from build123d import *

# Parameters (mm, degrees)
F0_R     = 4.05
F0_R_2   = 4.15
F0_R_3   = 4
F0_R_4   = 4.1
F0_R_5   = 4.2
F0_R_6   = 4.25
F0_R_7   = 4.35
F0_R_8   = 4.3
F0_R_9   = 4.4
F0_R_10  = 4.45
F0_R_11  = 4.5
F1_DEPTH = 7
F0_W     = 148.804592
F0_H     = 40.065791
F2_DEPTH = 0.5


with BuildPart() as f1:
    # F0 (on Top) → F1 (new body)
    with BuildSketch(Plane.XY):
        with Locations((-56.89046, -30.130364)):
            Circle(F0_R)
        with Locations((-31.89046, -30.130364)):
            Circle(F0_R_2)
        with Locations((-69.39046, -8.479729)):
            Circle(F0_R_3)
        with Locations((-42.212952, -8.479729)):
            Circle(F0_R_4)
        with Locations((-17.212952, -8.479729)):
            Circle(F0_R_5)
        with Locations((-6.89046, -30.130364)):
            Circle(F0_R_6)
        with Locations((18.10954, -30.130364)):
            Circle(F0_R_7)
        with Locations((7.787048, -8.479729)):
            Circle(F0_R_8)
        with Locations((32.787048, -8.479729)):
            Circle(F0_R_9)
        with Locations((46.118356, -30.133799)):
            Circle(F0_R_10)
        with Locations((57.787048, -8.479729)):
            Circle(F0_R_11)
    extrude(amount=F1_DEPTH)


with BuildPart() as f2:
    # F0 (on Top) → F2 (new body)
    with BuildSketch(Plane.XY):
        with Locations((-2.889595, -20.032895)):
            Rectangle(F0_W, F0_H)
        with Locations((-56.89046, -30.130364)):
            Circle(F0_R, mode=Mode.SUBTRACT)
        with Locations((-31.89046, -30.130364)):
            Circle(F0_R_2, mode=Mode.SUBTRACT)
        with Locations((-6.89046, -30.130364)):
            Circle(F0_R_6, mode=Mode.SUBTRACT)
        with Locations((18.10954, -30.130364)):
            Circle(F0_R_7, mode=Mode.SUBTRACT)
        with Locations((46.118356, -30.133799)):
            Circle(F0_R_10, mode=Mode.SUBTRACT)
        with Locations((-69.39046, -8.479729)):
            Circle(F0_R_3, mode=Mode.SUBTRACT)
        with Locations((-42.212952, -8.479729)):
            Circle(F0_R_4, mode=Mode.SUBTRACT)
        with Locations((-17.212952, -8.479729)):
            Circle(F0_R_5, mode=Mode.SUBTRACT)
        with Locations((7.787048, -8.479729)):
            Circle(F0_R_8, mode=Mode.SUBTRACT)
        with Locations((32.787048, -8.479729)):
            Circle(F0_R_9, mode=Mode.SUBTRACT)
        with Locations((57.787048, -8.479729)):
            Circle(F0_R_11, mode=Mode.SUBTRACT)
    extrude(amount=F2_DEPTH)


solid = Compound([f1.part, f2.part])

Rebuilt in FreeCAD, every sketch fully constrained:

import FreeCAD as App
import Part
import Sketcher
from FreeCAD import Vector


def add_polygon(sketch, points):
    """Adds a closed chain of lines whose ends are joined by coincident constraints."""
    first, n = sketch.GeometryCount, len(points)
    for a, b in zip(points, points[1:] + points[:1]):
        sketch.addGeometry(Part.LineSegment(App.Vector(*a, 0), App.Vector(*b, 0)), False)
    for i in range(n):
        sketch.addConstraint(Sketcher.Constraint("Coincident", first + i, 2, first + (i + 1) % n, 1))

doc = App.newDocument("Part")
body = doc.addObject("PartDesign::Body", "Body")
body.AllowCompound = True

sketch1 = body.newObject("Sketcher::SketchObject", "Sketch")
sketch1.AttachmentSupport = (doc.getObject("XY_Plane"), [""])
sketch1.MapMode = "FlatFace"
sketch1.addGeometry(Part.Circle(Vector(-56.9, -30.1, 0), Vector(0, 0, 1), 4), False)
sketch1.addGeometry(Part.Circle(Vector(-31.9, -30.1, 0), Vector(0, 0, 1), 4.2), False)
sketch1.addGeometry(Part.Circle(Vector(-69.4, -8.5, 0), Vector(0, 0, 1), 4), False)
sketch1.addGeometry(Part.Circle(Vector(-42.2, -8.5, 0), Vector(0, 0, 1), 4.1), False)
sketch1.addGeometry(Part.Circle(Vector(-17.2, -8.5, 0), Vector(0, 0, 1), 4.2), False)
sketch1.addGeometry(Part.Circle(Vector(-6.9, -30.1, 0), Vector(0, 0, 1), 4.2), False)
sketch1.addGeometry(Part.Circle(Vector(18.1, -30.1, 0), Vector(0, 0, 1), 4.3), False)
sketch1.addGeometry(Part.Circle(Vector(7.8, -8.5, 0), Vector(0, 0, 1), 4.3), False)
sketch1.addGeometry(Part.Circle(Vector(32.8, -8.5, 0), Vector(0, 0, 1), 4.4), False)
sketch1.addGeometry(Part.Circle(Vector(46.1, -30.1, 0), Vector(0, 0, 1), 4.5), False)
sketch1.addGeometry(Part.Circle(Vector(57.8, -8.5, 0), Vector(0, 0, 1), 4.5), False)
sketch1.addConstraint(Sketcher.Constraint("Horizontal", 0, 3, 1, 3))
sketch1.addConstraint(Sketcher.Constraint("Horizontal", 2, 3, 3, 3))
sketch1.addConstraint(Sketcher.Constraint("Horizontal", 3, 3, 4, 3))
sketch1.addConstraint(Sketcher.Constraint("Horizontal", 1, 3, 5, 3))
sketch1.addConstraint(Sketcher.Constraint("Horizontal", 5, 3, 6, 3))
sketch1.addConstraint(Sketcher.Constraint("Horizontal", 4, 3, 7, 3))
sketch1.addConstraint(Sketcher.Constraint("Horizontal", 7, 3, 8, 3))
sketch1.addConstraint(Sketcher.Constraint("Horizontal", 8, 3, 10, 3))
sketch1.addConstraint(Sketcher.Constraint("Diameter", 2, 8.0))
sketch1.addConstraint(Sketcher.Constraint("Diameter", 10, 9.0))
sketch1.addConstraint(Sketcher.Constraint("Diameter", 0, 8.1))
sketch1.addConstraint(Sketcher.Constraint("Diameter", 1, 8.3))
sketch1.addConstraint(Sketcher.Constraint("Diameter", 3, 8.2))
sketch1.addConstraint(Sketcher.Constraint("Diameter", 4, 8.4))
sketch1.addConstraint(Sketcher.Constraint("Diameter", 5, 8.5))
sketch1.addConstraint(Sketcher.Constraint("Diameter", 6, 8.7))
sketch1.addConstraint(Sketcher.Constraint("Diameter", 7, 8.6))
sketch1.addConstraint(Sketcher.Constraint("Diameter", 8, 8.8))
sketch1.addConstraint(Sketcher.Constraint("Diameter", 9, 8.9))
sketch1.addConstraint(Sketcher.Constraint("DistanceX", 0, 3, 1, 3, 25.0))
sketch1.addConstraint(Sketcher.Constraint("DistanceX", 3, 3, 4, 3, 25.0))
sketch1.addConstraint(Sketcher.Constraint("DistanceX", 1, 3, 5, 3, 25.0))
sketch1.addConstraint(Sketcher.Constraint("DistanceX", 5, 3, 6, 3, 25.0))
sketch1.addConstraint(Sketcher.Constraint("DistanceX", 4, 3, 7, 3, 25.0))
sketch1.addConstraint(Sketcher.Constraint("DistanceX", 7, 3, 8, 3, 25.0))
sketch1.addConstraint(Sketcher.Constraint("DistanceX", 8, 3, 10, 3, 25.0))
sketch1.addConstraint(Sketcher.Constraint("DistanceX", 2, 3, 0, 3, 12.5))
sketch1.addConstraint(Sketcher.Constraint("DistanceY", 9, 3, -1, 1, 30.133799))
sketch1.addConstraint(Sketcher.Constraint("DistanceX", 0, 3, -1, 1, 56.89046))
sketch1.addConstraint(Sketcher.Constraint("DistanceY", 2, 3, -1, 1, 8.479729))
sketch1.addConstraint(Sketcher.Constraint("DistanceX", -1, 1, 7, 3, 7.787048))
sketch1.addConstraint(Sketcher.Constraint("DistanceY", 0, 3, -1, 1, 30.130364))
sketch1.addConstraint(Sketcher.Constraint("DistanceX", -1, 1, 9, 3, 46.118356))
pad1 = body.newObject("PartDesign::Pad", "Pad")
pad1.Profile = sketch1
pad1.Length = 7
body2 = doc.addObject("PartDesign::Body", "Body001")

sketch2 = body2.newObject("Sketcher::SketchObject", "Sketch001")
sketch2.AttachmentSupport = (doc.getObject("XY_Plane001"), [""])
sketch2.MapMode = "FlatFace"
add_polygon(sketch2, [(-77.3, 0), (-77.3, -40.1), (71.5, -40.1), (71.5, 0)])
sketch2.addGeometry(Part.Circle(Vector(-56.9, -30.1, 0), Vector(0, 0, 1), 4), False)
sketch2.addGeometry(Part.Circle(Vector(-31.9, -30.1, 0), Vector(0, 0, 1), 4.2), False)
sketch2.addGeometry(Part.Circle(Vector(-6.9, -30.1, 0), Vector(0, 0, 1), 4.2), False)
sketch2.addGeometry(Part.Circle(Vector(18.1, -30.1, 0), Vector(0, 0, 1), 4.3), False)
sketch2.addGeometry(Part.Circle(Vector(46.1, -30.1, 0), Vector(0, 0, 1), 4.5), False)
sketch2.addGeometry(Part.Circle(Vector(-69.4, -8.5, 0), Vector(0, 0, 1), 4), False)
sketch2.addGeometry(Part.Circle(Vector(-42.2, -8.5, 0), Vector(0, 0, 1), 4.1), False)
sketch2.addGeometry(Part.Circle(Vector(-17.2, -8.5, 0), Vector(0, 0, 1), 4.2), False)
sketch2.addGeometry(Part.Circle(Vector(7.8, -8.5, 0), Vector(0, 0, 1), 4.3), False)
sketch2.addGeometry(Part.Circle(Vector(32.8, -8.5, 0), Vector(0, 0, 1), 4.4), False)
sketch2.addGeometry(Part.Circle(Vector(57.8, -8.5, 0), Vector(0, 0, 1), 4.5), False)
sketch2.addConstraint(Sketcher.Constraint("Vertical", 0))
sketch2.addConstraint(Sketcher.Constraint("Horizontal", 1))
sketch2.addConstraint(Sketcher.Constraint("Vertical", 2))
sketch2.addConstraint(Sketcher.Constraint("Horizontal", 3))
sketch2.addConstraint(Sketcher.Constraint("PointOnObject", 2, 2, -1))
sketch2.addConstraint(Sketcher.Constraint("Horizontal", 4, 3, 5, 3))
sketch2.addConstraint(Sketcher.Constraint("Horizontal", 5, 3, 6, 3))
sketch2.addConstraint(Sketcher.Constraint("Horizontal", 6, 3, 7, 3))
sketch2.addConstraint(Sketcher.Constraint("Horizontal", 9, 3, 10, 3))
sketch2.addConstraint(Sketcher.Constraint("Horizontal", 10, 3, 11, 3))
sketch2.addConstraint(Sketcher.Constraint("Horizontal", 11, 3, 12, 3))
sketch2.addConstraint(Sketcher.Constraint("Horizontal", 12, 3, 13, 3))
sketch2.addConstraint(Sketcher.Constraint("Horizontal", 13, 3, 14, 3))
sketch2.addConstraint(Sketcher.Constraint("Diameter", 9, 8.0))
sketch2.addConstraint(Sketcher.Constraint("Diameter", 14, 9.0))
sketch2.addConstraint(Sketcher.Constraint("Diameter", 4, 8.1))
sketch2.addConstraint(Sketcher.Constraint("Diameter", 5, 8.3))
sketch2.addConstraint(Sketcher.Constraint("Diameter", 6, 8.5))
sketch2.addConstraint(Sketcher.Constraint("Diameter", 7, 8.7))
sketch2.addConstraint(Sketcher.Constraint("Diameter", 8, 8.9))
sketch2.addConstraint(Sketcher.Constraint("Diameter", 10, 8.2))
sketch2.addConstraint(Sketcher.Constraint("Diameter", 11, 8.4))
sketch2.addConstraint(Sketcher.Constraint("Diameter", 12, 8.6))
sketch2.addConstraint(Sketcher.Constraint("Diameter", 13, 8.8))
sketch2.addConstraint(Sketcher.Constraint("DistanceX", 4, 3, 5, 3, 25.0))
sketch2.addConstraint(Sketcher.Constraint("DistanceX", 5, 3, 6, 3, 25.0))
sketch2.addConstraint(Sketcher.Constraint("DistanceX", 6, 3, 7, 3, 25.0))
sketch2.addConstraint(Sketcher.Constraint("DistanceX", 10, 3, 11, 3, 25.0))
sketch2.addConstraint(Sketcher.Constraint("DistanceX", 11, 3, 12, 3, 25.0))
sketch2.addConstraint(Sketcher.Constraint("DistanceX", 12, 3, 13, 3, 25.0))
sketch2.addConstraint(Sketcher.Constraint("DistanceX", 13, 3, 14, 3, 25.0))
sketch2.addConstraint(Sketcher.Constraint("DistanceX", 9, 3, 4, 3, 12.5))
sketch2.addConstraint(Sketcher.Constraint("DistanceY", 0, 2, 0, 1, 40.065791))
sketch2.addConstraint(Sketcher.Constraint("DistanceY", 8, 3, -1, 1, 30.133799))
sketch2.addConstraint(Sketcher.Constraint("DistanceX", -1, 1, 1, 2, 71.512701))
sketch2.addConstraint(Sketcher.Constraint("DistanceX", 1, 1, 1, 2, 148.804592))
sketch2.addConstraint(Sketcher.Constraint("DistanceX", 4, 3, -1, 1, 56.89046))
sketch2.addConstraint(Sketcher.Constraint("DistanceY", 9, 3, -1, 1, 8.479729))
sketch2.addConstraint(Sketcher.Constraint("DistanceX", -1, 1, 12, 3, 7.787048))
sketch2.addConstraint(Sketcher.Constraint("DistanceY", 4, 3, -1, 1, 30.130364))
sketch2.addConstraint(Sketcher.Constraint("DistanceX", -1, 1, 8, 3, 46.118356))
pad2 = body2.newObject("PartDesign::Pad", "Pad001")
pad2.Profile = sketch2
pad2.Length = 0.5

doc.recompute()
